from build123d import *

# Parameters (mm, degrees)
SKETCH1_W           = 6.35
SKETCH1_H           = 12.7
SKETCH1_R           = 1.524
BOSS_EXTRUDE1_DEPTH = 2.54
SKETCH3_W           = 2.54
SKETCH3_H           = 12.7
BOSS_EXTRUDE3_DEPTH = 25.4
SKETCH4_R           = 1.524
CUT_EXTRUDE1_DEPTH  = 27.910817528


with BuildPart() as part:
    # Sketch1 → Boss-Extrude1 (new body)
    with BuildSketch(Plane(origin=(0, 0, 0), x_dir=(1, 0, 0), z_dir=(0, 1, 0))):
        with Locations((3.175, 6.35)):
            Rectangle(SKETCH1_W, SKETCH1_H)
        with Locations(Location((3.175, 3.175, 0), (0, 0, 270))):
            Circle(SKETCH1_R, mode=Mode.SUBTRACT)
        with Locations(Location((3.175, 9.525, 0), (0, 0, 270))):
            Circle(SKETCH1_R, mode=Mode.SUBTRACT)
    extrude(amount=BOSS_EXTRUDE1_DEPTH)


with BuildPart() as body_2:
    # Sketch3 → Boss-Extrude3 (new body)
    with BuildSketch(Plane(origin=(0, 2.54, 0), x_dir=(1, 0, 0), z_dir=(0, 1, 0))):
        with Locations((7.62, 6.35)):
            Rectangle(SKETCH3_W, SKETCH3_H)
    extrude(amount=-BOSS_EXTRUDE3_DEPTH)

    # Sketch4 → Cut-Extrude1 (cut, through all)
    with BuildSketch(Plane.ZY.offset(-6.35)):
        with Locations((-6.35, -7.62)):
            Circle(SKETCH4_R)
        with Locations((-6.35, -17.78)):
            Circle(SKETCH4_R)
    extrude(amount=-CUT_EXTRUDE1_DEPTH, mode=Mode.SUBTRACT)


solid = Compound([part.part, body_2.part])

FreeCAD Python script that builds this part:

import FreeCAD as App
import Part
import Sketcher
from FreeCAD import Vector
Q = App.Units.Quantity


def add_polygon(sketch, points):
    """Adds a closed chain of lines whose ends are joined by coincident constraints."""
    first, n = sketch.GeometryCount, len(points)
    for a, b in zip(points, points[1:] + points[:1]):
        sketch.addGeometry(Part.LineSegment(App.Vector(*a, 0), App.Vector(*b, 0)), False)
    for i in range(n):
        sketch.addConstraint(Sketcher.Constraint("Coincident", first + i, 2, first + (i + 1) % n, 1))

doc = App.newDocument("Part")
body = doc.addObject("PartDesign::Body", "Body")

sketch1 = doc.addObject("Sketcher::SketchObject", "Sketch")
body.addObject(sketch1)
sketch1.AttachmentSupport = (doc.XZ_Plane, [""])
sketch1.MapMode = "FlatFace"
add_polygon(sketch1, [(0, -12.7), (0, 0), (6.35, 0), (6.35, -12.7)])
sketch1.addGeometry(Part.Circle(Vector(3.175, -3.175, 0), Vector(0, 0, 1), 1.524), False)
sketch1.addGeometry(Part.Circle(Vector(3.175, -9.525, 0), Vector(0, 0, 1), 1.524), False)
sketch1.addConstraint([
    Sketcher.Constraint("Vertical", 0),
    Sketcher.Constraint("Horizontal", 1),
    Sketcher.Constraint("Vertical", 2),
    Sketcher.Constraint("Horizontal", 3),
    Sketcher.Constraint("Coincident", 0, 2, -1, 1),
    Sketcher.Constraint("Equal", 4, 5),
    Sketcher.Constraint("Vertical", 4, 3, 5, 3),
    Sketcher.Constraint("Diameter", 4, Q("0.12 in")),
    Sketcher.Constraint("DistanceY", 0, 1, 0, 2, Q("0.5 in")),
    Sketcher.Constraint("DistanceX", 1, 1, 1, 2, Q("0.25 in")),
    Sketcher.Constraint("DistanceY", 5, 3, 4, 3, Q("0.25 in")),
    Sketcher.Constraint("DistanceX", -1, 1, 4, 3, Q("0.125 in")),
    Sketcher.Constraint("DistanceY", 4, 3, -1, 1, Q("0.125 in")),
])
pad1 = doc.addObject("PartDesign::Pad", "Pad")
body.addObject(pad1)
pad1.Profile = sketch1
pad1.Length = Q("0.1 in")
pad1.Reversed = True
body2 = doc.addObject("PartDesign::Body", "Body001")

sketch2 = doc.addObject("Sketcher::SketchObject", "Sketch001")
body2.addObject(sketch2)
sketch2.AttachmentSupport = (doc.getObject("XZ_Plane001"), [""])
sketch2.MapMode = "FlatFace"
sketch2.AttachmentOffset = App.Placement(Vector(0, 0, -0.1 * 25.4), App.Rotation())
add_polygon(sketch2, [(6.35, -12.7), (6.35, 0), (8.89, 0), (8.89, -12.7)])
sketch2.addConstraint([
    Sketcher.Constraint("Vertical", 0),
    Sketcher.Constraint("Horizontal", 1),
    Sketcher.Constraint("Vertical", 2),
    Sketcher.Constraint("Horizontal", 3),
    Sketcher.Constraint("PointOnObject", 0, 2, -1),
    Sketcher.Constraint("DistanceX", 1, 1, 1, 2, Q("0.1 in")),
    Sketcher.Constraint("DistanceY", 0, 1, 0, 2, Q("0.5 in")),
    Sketcher.Constraint("DistanceX", -1, 1, 0, 2, Q("0.25 in")),
])
pad2 = doc.addObject("PartDesign::Pad", "Pad001")
body2.addObject(pad2)
pad2.Profile = sketch2
pad2.Length = Q("1 in")

sketch3 = doc.addObject("Sketcher::SketchObject", "Sketch002")
body2.addObject(sketch3)
sketch3.AttachmentSupport = (doc.getObject("YZ_Plane001"), [""])
sketch3.MapMode = "FlatFace"
sketch3.AttachmentOffset = App.Placement(Vector(0, 0, 0.25 * 25.4), App.Rotation())
sketch3.addGeometry([
    Part.Circle(Vector(-7.62, -6.35, 0), Vector(0, 0, 1), 1.524),
    Part.Circle(Vector(-17.78, -6.35, 0), Vector(0, 0, 1), 1.524),
], False)
sketch3.addConstraint([
    Sketcher.Constraint("Equal", 0, 1),
    Sketcher.Constraint("Horizontal", 0, 3, 1, 3),
    Sketcher.Constraint("Diameter", 0, Q("0.12 in")),
    Sketcher.Constraint("DistanceX", 0, 3, -1, 1, Q("0.3 in")),
    Sketcher.Constraint("DistanceX", 1, 3, -1, 1, Q("0.7 in")),
    Sketcher.Constraint("DistanceY", 0, 3, -1, 1, Q("0.25 in")),
])
pocket1 = doc.addObject("PartDesign::Pocket", "Pocket")
body2.addObject(pocket1)
pocket1.Profile = sketch3
pocket1.Type = "ThroughAll"
pocket1.Reversed = True

doc.recompute()
